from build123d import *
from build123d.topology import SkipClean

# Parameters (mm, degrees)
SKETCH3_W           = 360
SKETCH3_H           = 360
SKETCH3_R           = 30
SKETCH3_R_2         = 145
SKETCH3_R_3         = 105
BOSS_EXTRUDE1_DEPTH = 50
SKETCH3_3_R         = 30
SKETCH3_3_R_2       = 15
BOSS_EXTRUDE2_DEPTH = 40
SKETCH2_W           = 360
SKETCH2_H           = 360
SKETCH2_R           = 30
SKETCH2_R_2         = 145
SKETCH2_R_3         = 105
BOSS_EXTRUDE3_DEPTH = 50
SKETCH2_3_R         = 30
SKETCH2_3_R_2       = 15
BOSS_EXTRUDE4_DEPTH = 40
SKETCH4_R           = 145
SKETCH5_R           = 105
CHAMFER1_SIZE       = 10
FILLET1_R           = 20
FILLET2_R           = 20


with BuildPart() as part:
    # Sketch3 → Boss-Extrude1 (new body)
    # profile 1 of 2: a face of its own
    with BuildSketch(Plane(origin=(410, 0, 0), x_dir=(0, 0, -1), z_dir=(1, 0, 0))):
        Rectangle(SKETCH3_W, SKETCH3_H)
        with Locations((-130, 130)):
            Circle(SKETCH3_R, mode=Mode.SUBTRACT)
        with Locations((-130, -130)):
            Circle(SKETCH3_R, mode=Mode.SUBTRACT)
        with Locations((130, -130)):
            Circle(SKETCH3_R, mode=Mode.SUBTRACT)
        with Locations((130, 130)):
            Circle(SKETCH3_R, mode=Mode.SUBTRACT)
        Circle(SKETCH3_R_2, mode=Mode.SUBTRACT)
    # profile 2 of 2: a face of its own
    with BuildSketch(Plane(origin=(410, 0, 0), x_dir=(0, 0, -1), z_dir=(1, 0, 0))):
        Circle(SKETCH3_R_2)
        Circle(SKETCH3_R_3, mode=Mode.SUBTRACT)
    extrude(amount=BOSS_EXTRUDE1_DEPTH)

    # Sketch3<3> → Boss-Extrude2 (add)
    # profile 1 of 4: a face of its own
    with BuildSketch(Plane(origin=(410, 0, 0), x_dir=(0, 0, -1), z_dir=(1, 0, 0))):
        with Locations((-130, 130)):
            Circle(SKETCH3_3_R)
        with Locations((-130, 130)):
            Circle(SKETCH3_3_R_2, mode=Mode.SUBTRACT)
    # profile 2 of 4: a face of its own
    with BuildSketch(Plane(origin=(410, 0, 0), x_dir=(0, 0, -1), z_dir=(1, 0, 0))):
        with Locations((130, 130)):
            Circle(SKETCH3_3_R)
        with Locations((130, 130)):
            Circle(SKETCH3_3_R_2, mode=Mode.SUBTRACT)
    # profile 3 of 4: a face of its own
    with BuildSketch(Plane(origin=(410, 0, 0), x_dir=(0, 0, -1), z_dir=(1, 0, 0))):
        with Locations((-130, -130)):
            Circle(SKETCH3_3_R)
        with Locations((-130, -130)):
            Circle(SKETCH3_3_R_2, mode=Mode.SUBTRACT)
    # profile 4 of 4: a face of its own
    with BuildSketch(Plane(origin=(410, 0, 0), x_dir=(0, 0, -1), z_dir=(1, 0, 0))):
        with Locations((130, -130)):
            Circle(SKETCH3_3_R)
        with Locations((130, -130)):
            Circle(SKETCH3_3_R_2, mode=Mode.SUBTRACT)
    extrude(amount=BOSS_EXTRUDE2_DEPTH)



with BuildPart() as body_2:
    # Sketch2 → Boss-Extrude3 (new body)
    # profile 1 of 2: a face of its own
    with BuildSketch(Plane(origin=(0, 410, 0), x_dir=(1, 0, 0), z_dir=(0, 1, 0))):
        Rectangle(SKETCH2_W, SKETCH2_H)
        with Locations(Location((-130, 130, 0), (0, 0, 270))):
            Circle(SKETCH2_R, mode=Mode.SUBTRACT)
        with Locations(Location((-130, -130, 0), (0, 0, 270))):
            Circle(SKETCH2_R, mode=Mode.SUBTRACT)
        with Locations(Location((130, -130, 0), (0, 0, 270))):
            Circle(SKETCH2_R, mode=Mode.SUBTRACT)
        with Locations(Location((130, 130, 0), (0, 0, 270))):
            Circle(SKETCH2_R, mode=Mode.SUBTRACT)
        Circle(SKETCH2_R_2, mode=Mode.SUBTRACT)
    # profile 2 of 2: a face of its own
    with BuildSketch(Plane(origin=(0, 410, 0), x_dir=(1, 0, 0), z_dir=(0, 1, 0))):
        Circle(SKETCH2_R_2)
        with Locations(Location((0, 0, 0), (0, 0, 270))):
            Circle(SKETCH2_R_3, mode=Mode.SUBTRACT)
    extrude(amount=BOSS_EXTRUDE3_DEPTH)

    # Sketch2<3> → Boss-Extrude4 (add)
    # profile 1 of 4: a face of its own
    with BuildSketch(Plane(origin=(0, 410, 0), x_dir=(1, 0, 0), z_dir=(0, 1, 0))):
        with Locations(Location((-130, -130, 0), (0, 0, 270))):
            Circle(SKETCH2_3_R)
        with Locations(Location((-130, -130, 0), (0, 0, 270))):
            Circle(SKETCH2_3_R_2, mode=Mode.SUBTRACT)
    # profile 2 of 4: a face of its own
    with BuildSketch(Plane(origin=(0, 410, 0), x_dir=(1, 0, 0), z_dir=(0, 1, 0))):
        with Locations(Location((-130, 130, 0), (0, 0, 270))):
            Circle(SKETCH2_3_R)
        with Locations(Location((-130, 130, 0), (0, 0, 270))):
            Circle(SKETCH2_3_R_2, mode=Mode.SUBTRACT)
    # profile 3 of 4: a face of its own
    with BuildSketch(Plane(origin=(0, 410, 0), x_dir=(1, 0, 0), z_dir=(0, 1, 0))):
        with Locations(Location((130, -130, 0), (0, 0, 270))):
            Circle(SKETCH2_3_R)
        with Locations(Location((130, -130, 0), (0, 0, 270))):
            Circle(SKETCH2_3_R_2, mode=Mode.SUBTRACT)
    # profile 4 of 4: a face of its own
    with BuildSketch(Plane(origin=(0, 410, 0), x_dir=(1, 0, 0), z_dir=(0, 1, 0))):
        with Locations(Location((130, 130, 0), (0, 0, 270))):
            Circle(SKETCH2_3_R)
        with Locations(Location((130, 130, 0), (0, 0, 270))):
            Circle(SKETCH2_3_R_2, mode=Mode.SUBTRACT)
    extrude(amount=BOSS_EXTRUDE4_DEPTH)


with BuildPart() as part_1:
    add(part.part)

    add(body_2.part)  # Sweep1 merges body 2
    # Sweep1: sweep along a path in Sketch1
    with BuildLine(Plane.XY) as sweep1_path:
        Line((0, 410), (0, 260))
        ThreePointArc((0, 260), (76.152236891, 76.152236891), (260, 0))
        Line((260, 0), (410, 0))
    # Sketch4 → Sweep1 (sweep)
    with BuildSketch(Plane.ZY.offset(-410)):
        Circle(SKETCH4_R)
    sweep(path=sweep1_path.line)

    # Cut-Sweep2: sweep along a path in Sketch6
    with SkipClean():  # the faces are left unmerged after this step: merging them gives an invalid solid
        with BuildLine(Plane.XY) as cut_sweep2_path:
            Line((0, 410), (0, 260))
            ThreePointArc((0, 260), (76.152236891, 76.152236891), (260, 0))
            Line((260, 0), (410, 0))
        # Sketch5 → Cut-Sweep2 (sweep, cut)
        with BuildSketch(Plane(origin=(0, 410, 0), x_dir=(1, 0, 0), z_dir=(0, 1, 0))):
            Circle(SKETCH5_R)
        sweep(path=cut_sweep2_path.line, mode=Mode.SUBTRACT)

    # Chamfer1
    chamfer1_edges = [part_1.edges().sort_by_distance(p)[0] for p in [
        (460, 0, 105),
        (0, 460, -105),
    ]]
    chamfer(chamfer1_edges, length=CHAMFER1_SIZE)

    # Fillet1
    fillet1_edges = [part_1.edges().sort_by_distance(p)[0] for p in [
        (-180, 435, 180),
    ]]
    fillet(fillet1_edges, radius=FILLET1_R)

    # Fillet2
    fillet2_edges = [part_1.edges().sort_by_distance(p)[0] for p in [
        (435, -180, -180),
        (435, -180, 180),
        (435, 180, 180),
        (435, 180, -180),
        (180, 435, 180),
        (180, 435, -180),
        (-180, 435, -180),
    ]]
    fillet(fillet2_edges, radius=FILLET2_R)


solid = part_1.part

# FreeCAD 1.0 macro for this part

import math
import FreeCAD as App
import Part
import Sketcher
Q = App.Units.Quantity


def edges_at(feature, points):
    """Names of the edges that pass closest to the given points."""
    edges = feature.Shape.Edges
    near = lambda p: min(range(len(edges)), key=lambda i: edges[i].distToShape(Part.Vertex(*p))[0])
    return sorted({f"Edge{near(p) + 1}" for p in points})

doc = App.newDocument("Part")
params = doc.addObject("Spreadsheet::Sheet", "Params")
for row, (alias, value) in enumerate([
    ("sketch1_diameter", "60 mm"),
    ("sketch1_diameter2", "210 mm"),
    ("sketch1_width", "360 mm"),
    ("pad1_length", "50 mm"),
    ("sketch2_diameter", "60 mm"),
    ("sketch2_diameter2", "30 mm"),
    ("pad2_length", "40 mm"),
    ("sketch3_diameter", "60 mm"),
    ("sketch3_diameter2", "210 mm"),
    ("sketch3_width", "360 mm"),
    ("pad3_length", "50 mm"),
    ("sketch4_diameter", "60 mm"),
    ("sketch4_diameter2", "30 mm"),
    ("pad4_length", "40 mm"),
    ("sketch5_diameter", "290 mm"),
    ("sketch6_radius", "260 mm"),
    ("sketch6_width", "150 mm"),
    ("sketch7_diameter", "210 mm"),
    ("sketch8_radius", "260 mm"),
    ("sketch8_width", "150 mm"),
    ("chamfer_size", "10 mm"),
    ("fillet_radius", "20 mm"),
    ("fillet2_radius", "20 mm"),
], start=1):
    params.set(f"A{row}", alias)
    params.set(f"B{row}", "=" + value)
    params.setAlias(f"B{row}", alias)

body = doc.addObject("PartDesign::Body", "Body")

# Sketch on YZ plane
sketch1 = doc.addObject("Sketcher::SketchObject", "Sketch")
body.addObject(sketch1)
sketch1.AttachmentSupport = (doc.YZ_Plane, [""])
sketch1.MapMode = "FlatFace"
sketch1.AttachmentOffset = App.Placement(App.Vector(0, 0, 410), App.Rotation())
sketch1.addGeometry([
    Part.LineSegment(App.Vector(180, 180, 0), App.Vector(-180, 180, 0)),  # 0
    Part.LineSegment(App.Vector(-180, 180, 0), App.Vector(-180, -180, 0)),  # 1
    Part.LineSegment(App.Vector(-180, -180, 0), App.Vector(180, -180, 0)),  # 2
    Part.LineSegment(App.Vector(180, -180, 0), App.Vector(180, 180, 0)),  # 3
    Part.Circle(App.Vector(-130, 130, 0), App.Vector(0, 0, 1), 30),  # 4
    Part.Circle(App.Vector(-130, -130, 0), App.Vector(0, 0, 1), 30),  # 5
    Part.Circle(App.Vector(130, 130, 0), App.Vector(0, 0, 1), 30),  # 6
    Part.Circle(App.Vector(130, -130, 0), App.Vector(0, 0, 1), 30),  # 7
    Part.Circle(App.Vector(0, 0, 0), App.Vector(0, 0, 1), 105),  # 8
], False)
sketch1.addConstraint([
    Sketcher.Constraint("Coincident", 0, 2, 1, 1),
    Sketcher.Constraint("Coincident", 1, 2, 2, 1),
    Sketcher.Constraint("Coincident", 2, 2, 3, 1),
    Sketcher.Constraint("Coincident", 3, 2, 0, 1),
    Sketcher.Constraint("Horizontal", 0),
    Sketcher.Constraint("Vertical", 1),
    Sketcher.Constraint("Horizontal", 2),
    Sketcher.Constraint("Vertical", 3),
    Sketcher.Constraint("Coincident", 8, 3, -1, 1),
    Sketcher.Constraint("Equal", 4, 5),
    Sketcher.Constraint("Equal", 5, 6),
    Sketcher.Constraint("Equal", 6, 7),
    Sketcher.Constraint("Symmetric", 5, 3, 6, 3, -1, 1),
    Sketcher.Constraint("Symmetric", 4, 3, 7, 3, -1, 1),
    Sketcher.Constraint("Symmetric", 0, 2, 2, 2, -1, 1),
    Sketcher.Constraint("Symmetric", 4, 3, 6, 3, -2),
    Sketcher.Constraint("Equal", 2, 1),
    Sketcher.Constraint("Diameter", 4, Q("60 mm")),
    Sketcher.Constraint("Diameter", 8, Q("210 mm")),
    Sketcher.Constraint("DistanceX", 0, 2, 0, 1, Q("360 mm")),
    Sketcher.Constraint("DistanceX", 4, 3, -1, 1, Q("130 mm")),
    Sketcher.Constraint("DistanceY", -1, 1, 4, 3, Q("130 mm")),
])
sketch1.setExpression("Constraints[17]", "Params.sketch1_diameter")
sketch1.setExpression("Constraints[18]", "Params.sketch1_diameter2")
sketch1.setExpression("Constraints[19]", "Params.sketch1_width")
pad1 = doc.addObject("PartDesign::Pad", "Pad")
body.addObject(pad1)
pad1.Profile = sketch1
pad1.setExpression("Length", "Params.pad1_length")

# Sketch on YZ plane
sketch2 = doc.addObject("Sketcher::SketchObject", "Sketch001")
body.addObject(sketch2)
sketch2.AttachmentSupport = (doc.YZ_Plane, [""])
sketch2.MapMode = "FlatFace"
sketch2.AttachmentOffset = App.Placement(App.Vector(0, 0, 410), App.Rotation())
sketch2.addGeometry([
    Part.Circle(App.Vector(130, 130, 0), App.Vector(0, 0, 1), 30),  # 0
    Part.Circle(App.Vector(130, 130, 0), App.Vector(0, 0, 1), 15),  # 1
    Part.Circle(App.Vector(130, -130, 0), App.Vector(0, 0, 1), 30),  # 2
    Part.Circle(App.Vector(130, -130, 0), App.Vector(0, 0, 1), 15),  # 3
    Part.Circle(App.Vector(-130, 130, 0), App.Vector(0, 0, 1), 30),  # 4
    Part.Circle(App.Vector(-130, 130, 0), App.Vector(0, 0, 1), 15),  # 5
    Part.Circle(App.Vector(-130, -130, 0), App.Vector(0, 0, 1), 30),  # 6
    Part.Circle(App.Vector(-130, -130, 0), App.Vector(0, 0, 1), 15),  # 7
], False)
sketch2.addConstraint([
    Sketcher.Constraint("Coincident", 1, 3, 0, 3),
    Sketcher.Constraint("Coincident", 3, 3, 2, 3),
    Sketcher.Constraint("Coincident", 5, 3, 4, 3),
    Sketcher.Constraint("Coincident", 7, 3, 6, 3),
    Sketcher.Constraint("Equal", 0, 2),
    Sketcher.Constraint("Equal", 1, 3),
    Sketcher.Constraint("Equal", 2, 4),
    Sketcher.Constraint("Equal", 3, 5),
    Sketcher.Constraint("Equal", 4, 6),
    Sketcher.Constraint("Equal", 5, 7),
    Sketcher.Constraint("Symmetric", 2, 3, 4, 3, -1, 1),
    Sketcher.Constraint("Symmetric", 0, 3, 6, 3, -1, 1),
    Sketcher.Constraint("Symmetric", 0, 3, 4, 3, -2),
    Sketcher.Constraint("Diameter", 0, Q("60 mm")),
    Sketcher.Constraint("Diameter", 1, Q("30 mm")),
    Sketcher.Constraint("DistanceX", -1, 1, 0, 3, Q("130 mm")),
    Sketcher.Constraint("DistanceY", -1, 1, 0, 3, Q("130 mm")),
])
sketch2.setExpression("Constraints[13]", "Params.sketch2_diameter")
sketch2.setExpression("Constraints[14]", "Params.sketch2_diameter2")
pad2 = doc.addObject("PartDesign::Pad", "Pad001")
body.addObject(pad2)
pad2.Profile = sketch2
pad2.setExpression("Length", "Params.pad2_length")
body2 = doc.addObject("PartDesign::Body", "Body001")

# Sketch on XZ plane
sketch3 = doc.addObject("Sketcher::SketchObject", "Sketch002")
body2.addObject(sketch3)
sketch3.AttachmentSupport = (doc.getObject("XZ_Plane001"), [""])
sketch3.MapMode = "FlatFace"
sketch3.AttachmentOffset = App.Placement(App.Vector(0, 0, -410), App.Rotation())
sketch3.addGeometry([
    Part.LineSegment(App.Vector(-180, -180, 0), App.Vector(-180, 180, 0)),  # 0
    Part.LineSegment(App.Vector(-180, 180, 0), App.Vector(180, 180, 0)),  # 1
    Part.LineSegment(App.Vector(180, 180, 0), App.Vector(180, -180, 0)),  # 2
    Part.LineSegment(App.Vector(180, -180, 0), App.Vector(-180, -180, 0)),  # 3
    Part.Circle(App.Vector(-130, 130, 0), App.Vector(0, 0, 1), 30),  # 4
    Part.Circle(App.Vector(130, 130, 0), App.Vector(0, 0, 1), 30),  # 5
    Part.Circle(App.Vector(-130, -130, 0), App.Vector(0, 0, 1), 30),  # 6
    Part.Circle(App.Vector(130, -130, 0), App.Vector(0, 0, 1), 30),  # 7
    Part.Circle(App.Vector(0, 0, 0), App.Vector(0, 0, 1), 105),  # 8
], False)
sketch3.addConstraint([
    Sketcher.Constraint("Coincident", 0, 2, 1, 1),
    Sketcher.Constraint("Coincident", 1, 2, 2, 1),
    Sketcher.Constraint("Coincident", 2, 2, 3, 1),
    Sketcher.Constraint("Coincident", 3, 2, 0, 1),
    Sketcher.Constraint("Vertical", 0),
    Sketcher.Constraint("Horizontal", 1),
    Sketcher.Constraint("Vertical", 2),
    Sketcher.Constraint("Horizontal", 3),
    Sketcher.Constraint("Coincident", 8, 3, -1, 1),
    Sketcher.Constraint("Equal", 4, 5),
    Sketcher.Constraint("Equal", 5, 6),
    Sketcher.Constraint("Equal", 6, 7),
    Sketcher.Constraint("Symmetric", 5, 3, 6, 3, -1, 1),
    Sketcher.Constraint("Symmetric", 4, 3, 7, 3, -1, 1),
    Sketcher.Constraint("Symmetric", 0, 2, 2, 2, -1, 1),
    Sketcher.Constraint("Symmetric", 4, 3, 5, 3, -2),
    Sketcher.Constraint("Equal", 3, 0),
    Sketcher.Constraint("Diameter", 4, Q("60 mm")),
    Sketcher.Constraint("Diameter", 8, Q("210 mm")),
    Sketcher.Constraint("DistanceX", 1, 1, 1, 2, Q("360 mm")),
    Sketcher.Constraint("DistanceX", 4, 3, -1, 1, Q("130 mm")),
    Sketcher.Constraint("DistanceY", -1, 1, 4, 3, Q("130 mm")),
])
sketch3.setExpression("Constraints[17]", "Params.sketch3_diameter")
sketch3.setExpression("Constraints[18]", "Params.sketch3_diameter2")
sketch3.setExpression("Constraints[19]", "Params.sketch3_width")
pad3 = doc.addObject("PartDesign::Pad", "Pad002")
body2.addObject(pad3)
pad3.Profile = sketch3
pad3.setExpression("Length", "Params.pad3_length")
pad3.Reversed = True

# Sketch on XZ plane
sketch4 = doc.addObject("Sketcher::SketchObject", "Sketch003")
body2.addObject(sketch4)
sketch4.AttachmentSupport = (doc.getObject("XZ_Plane001"), [""])
sketch4.MapMode = "FlatFace"
sketch4.AttachmentOffset = App.Placement(App.Vector(0, 0, -410), App.Rotation())
sketch4.addGeometry([
    Part.Circle(App.Vector(-130, 130, 0), App.Vector(0, 0, 1), 30),  # 0
    Part.Circle(App.Vector(-130, 130, 0), App.Vector(0, 0, 1), 15),  # 1
    Part.Circle(App.Vector(-130, -130, 0), App.Vector(0, 0, 1), 30),  # 2
    Part.Circle(App.Vector(-130, -130, 0), App.Vector(0, 0, 1), 15),  # 3
    Part.Circle(App.Vector(130, 130, 0), App.Vector(0, 0, 1), 30),  # 4
    Part.Circle(App.Vector(130, 130, 0), App.Vector(0, 0, 1), 15),  # 5
    Part.Circle(App.Vector(130, -130, 0), App.Vector(0, 0, 1), 30),  # 6
    Part.Circle(App.Vector(130, -130, 0), App.Vector(0, 0, 1), 15),  # 7
], False)
sketch4.addConstraint([
    Sketcher.Constraint("Coincident", 1, 3, 0, 3),
    Sketcher.Constraint("Coincident", 3, 3, 2, 3),
    Sketcher.Constraint("Coincident", 5, 3, 4, 3),
    Sketcher.Constraint("Coincident", 7, 3, 6, 3),
    Sketcher.Constraint("Equal", 0, 2),
    Sketcher.Constraint("Equal", 1, 3),
    Sketcher.Constraint("Equal", 2, 4),
    Sketcher.Constraint("Equal", 3, 5),
    Sketcher.Constraint("Equal", 4, 6),
    Sketcher.Constraint("Equal", 5, 7),
    Sketcher.Constraint("Symmetric", 2, 3, 4, 3, -1, 1),
    Sketcher.Constraint("Symmetric", 0, 3, 6, 3, -1, 1),
    Sketcher.Constraint("Symmetric", 0, 3, 4, 3, -2),
    Sketcher.Constraint("Diameter", 0, Q("60 mm")),
    Sketcher.Constraint("Diameter", 1, Q("30 mm")),
    Sketcher.Constraint("DistanceX", 0, 3, -1, 1, Q("130 mm")),
    Sketcher.Constraint("DistanceY", -1, 1, 0, 3, Q("130 mm")),
])
sketch4.setExpression("Constraints[13]", "Params.sketch4_diameter")
sketch4.setExpression("Constraints[14]", "Params.sketch4_diameter2")
pad4 = doc.addObject("PartDesign::Pad", "Pad003")
body2.addObject(pad4)
pad4.Profile = sketch4
pad4.setExpression("Length", "Params.pad4_length")
pad4.Reversed = True
body.AllowCompound = True
doc.recompute()

boolean = doc.addObject("PartDesign::Boolean", "Boolean")
body.addObject(boolean)
boolean.Type = "Fuse"
boolean.addObjects([body2])

# Sketch on YZ plane
sketch5 = doc.addObject("Sketcher::SketchObject", "Sketch004")
body.addObject(sketch5)
sketch5.AttachmentSupport = (doc.YZ_Plane, [""])
sketch5.MapMode = "FlatFace"
sketch5.AttachmentOffset = App.Placement(App.Vector(0, 0, 410), App.Rotation())
sketch5.addGeometry(Part.Circle(App.Vector(0, 0, 0), App.Vector(0, 0, 1), 145), False)
sketch5.addConstraint([
    Sketcher.Constraint("Coincident", 0, 3, -1, 1),
    Sketcher.Constraint("Diameter", 0, Q("290 mm")),
])
sketch5.setExpression("Constraints[1]", "Params.sketch5_diameter")

# Sketch on XY plane
sketch6 = doc.addObject("Sketcher::SketchObject", "Sketch005")
body.addObject(sketch6)
sketch6.AttachmentSupport = (doc.XY_Plane, [""])
sketch6.MapMode = "FlatFace"
sketch6.addGeometry([
    Part.LineSegment(App.Vector(0, 410, 0), App.Vector(0, 260, 0)),
    Part.ArcOfCircle(Part.Circle(App.Vector(260, 260, 0), App.Vector(0, 0, 1), 260), math.radians(180), math.radians(270)),
    Part.LineSegment(App.Vector(260, 0, 0), App.Vector(410, 0, 0)),
], False)
sketch6.addConstraint([
    Sketcher.Constraint("Tangent", 0, 2, 1, 1),
    Sketcher.Constraint("Tangent", 1, 2, 2, 1),
    Sketcher.Constraint("Vertical", 0),
    Sketcher.Constraint("Horizontal", 2),
    Sketcher.Constraint("PointOnObject", 0, 1, -2),
    Sketcher.Constraint("PointOnObject", 1, 2, -1),
    Sketcher.Constraint("Equal", 2, 0),
    Sketcher.Constraint("Radius", 1, Q("260 mm")),
    Sketcher.Constraint("DistanceX", 2, 1, 2, 2, Q("150 mm")),
])
sketch6.setExpression("Constraints[7]", "Params.sketch6_radius")
sketch6.setExpression("Constraints[8]", "Params.sketch6_width")
doc.recompute()

additivepipe = doc.addObject("PartDesign::AdditivePipe", "AdditivePipe")
body.addObject(additivepipe)
additivepipe.Profile = sketch5
additivepipe.Spine = (sketch6, ["Edge1", "Edge2", "Edge3"])

# Sketch on XZ plane
sketch7 = doc.addObject("Sketcher::SketchObject", "Sketch006")
body.addObject(sketch7)
sketch7.AttachmentSupport = (doc.XZ_Plane, [""])
sketch7.MapMode = "FlatFace"
sketch7.AttachmentOffset = App.Placement(App.Vector(0, 0, -410), App.Rotation())
sketch7.addGeometry(Part.Circle(App.Vector(0, 0, 0), App.Vector(0, 0, 1), 105), False)
sketch7.addConstraint([
    Sketcher.Constraint("Coincident", 0, 3, -1, 1),
    Sketcher.Constraint("Diameter", 0, Q("210 mm")),
])
sketch7.setExpression("Constraints[1]", "Params.sketch7_diameter")

# Sketch on XY plane
sketch8 = doc.addObject("Sketcher::SketchObject", "Sketch007")
body.addObject(sketch8)
sketch8.AttachmentSupport = (doc.XY_Plane, [""])
sketch8.MapMode = "FlatFace"
sketch8.addGeometry([
    Part.LineSegment(App.Vector(0, 410, 0), App.Vector(0, 260, 0)),
    Part.ArcOfCircle(Part.Circle(App.Vector(260, 260, 0), App.Vector(0, 0, 1), 260), math.radians(180), math.radians(270)),
    Part.LineSegment(App.Vector(260, 0, 0), App.Vector(410, 0, 0)),
], False)
sketch8.addConstraint([
    Sketcher.Constraint("Tangent", 0, 2, 1, 1),
    Sketcher.Constraint("Tangent", 1, 2, 2, 1),
    Sketcher.Constraint("Vertical", 0),
    Sketcher.Constraint("Horizontal", 2),
    Sketcher.Constraint("PointOnObject", 0, 1, -2),
    Sketcher.Constraint("PointOnObject", 1, 2, -1),
    Sketcher.Constraint("Equal", 2, 0),
    Sketcher.Constraint("Radius", 1, Q("260 mm")),
    Sketcher.Constraint("DistanceX", 2, 1, 2, 2, Q("150 mm")),
])
sketch8.setExpression("Constraints[7]", "Params.sketch8_radius")
sketch8.setExpression("Constraints[8]", "Params.sketch8_width")
doc.recompute()

subtractivepipe = doc.addObject("PartDesign::SubtractivePipe", "SubtractivePipe")
body.addObject(subtractivepipe)
subtractivepipe.Profile = sketch7
subtractivepipe.Spine = (sketch8, ["Edge1", "Edge2", "Edge3"])
doc.recompute()

chamfer = doc.addObject("PartDesign::Chamfer", "Chamfer")
body.addObject(chamfer)
chamfer.Base = (subtractivepipe, edges_at(subtractivepipe, [(460, 0, 105), (0, 460, -105)]))
chamfer.setExpression("Size", "Params.chamfer_size")
doc.recompute()

fillet = doc.addObject("PartDesign::Fillet", "Fillet")
body.addObject(fillet)
fillet.Base = (chamfer, edges_at(chamfer, [(-180, 435, 180)]))
fillet.setExpression("Radius", "Params.fillet_radius")
doc.recompute()

fillet2 = doc.addObject("PartDesign::Fillet", "Fillet001")
body.addObject(fillet2)
fillet2.Base = (fillet, edges_at(fillet, [
    (435, -180, -180),
    (435, -180, 180),
    (435, 180, 180),
    (435, 180, -180),
    (180, 435, 180),
    (180, 435, -180),
    (-180, 435, -180),
]))
fillet2.setExpression("Radius", "Params.fillet2_radius")

doc.recompute()
